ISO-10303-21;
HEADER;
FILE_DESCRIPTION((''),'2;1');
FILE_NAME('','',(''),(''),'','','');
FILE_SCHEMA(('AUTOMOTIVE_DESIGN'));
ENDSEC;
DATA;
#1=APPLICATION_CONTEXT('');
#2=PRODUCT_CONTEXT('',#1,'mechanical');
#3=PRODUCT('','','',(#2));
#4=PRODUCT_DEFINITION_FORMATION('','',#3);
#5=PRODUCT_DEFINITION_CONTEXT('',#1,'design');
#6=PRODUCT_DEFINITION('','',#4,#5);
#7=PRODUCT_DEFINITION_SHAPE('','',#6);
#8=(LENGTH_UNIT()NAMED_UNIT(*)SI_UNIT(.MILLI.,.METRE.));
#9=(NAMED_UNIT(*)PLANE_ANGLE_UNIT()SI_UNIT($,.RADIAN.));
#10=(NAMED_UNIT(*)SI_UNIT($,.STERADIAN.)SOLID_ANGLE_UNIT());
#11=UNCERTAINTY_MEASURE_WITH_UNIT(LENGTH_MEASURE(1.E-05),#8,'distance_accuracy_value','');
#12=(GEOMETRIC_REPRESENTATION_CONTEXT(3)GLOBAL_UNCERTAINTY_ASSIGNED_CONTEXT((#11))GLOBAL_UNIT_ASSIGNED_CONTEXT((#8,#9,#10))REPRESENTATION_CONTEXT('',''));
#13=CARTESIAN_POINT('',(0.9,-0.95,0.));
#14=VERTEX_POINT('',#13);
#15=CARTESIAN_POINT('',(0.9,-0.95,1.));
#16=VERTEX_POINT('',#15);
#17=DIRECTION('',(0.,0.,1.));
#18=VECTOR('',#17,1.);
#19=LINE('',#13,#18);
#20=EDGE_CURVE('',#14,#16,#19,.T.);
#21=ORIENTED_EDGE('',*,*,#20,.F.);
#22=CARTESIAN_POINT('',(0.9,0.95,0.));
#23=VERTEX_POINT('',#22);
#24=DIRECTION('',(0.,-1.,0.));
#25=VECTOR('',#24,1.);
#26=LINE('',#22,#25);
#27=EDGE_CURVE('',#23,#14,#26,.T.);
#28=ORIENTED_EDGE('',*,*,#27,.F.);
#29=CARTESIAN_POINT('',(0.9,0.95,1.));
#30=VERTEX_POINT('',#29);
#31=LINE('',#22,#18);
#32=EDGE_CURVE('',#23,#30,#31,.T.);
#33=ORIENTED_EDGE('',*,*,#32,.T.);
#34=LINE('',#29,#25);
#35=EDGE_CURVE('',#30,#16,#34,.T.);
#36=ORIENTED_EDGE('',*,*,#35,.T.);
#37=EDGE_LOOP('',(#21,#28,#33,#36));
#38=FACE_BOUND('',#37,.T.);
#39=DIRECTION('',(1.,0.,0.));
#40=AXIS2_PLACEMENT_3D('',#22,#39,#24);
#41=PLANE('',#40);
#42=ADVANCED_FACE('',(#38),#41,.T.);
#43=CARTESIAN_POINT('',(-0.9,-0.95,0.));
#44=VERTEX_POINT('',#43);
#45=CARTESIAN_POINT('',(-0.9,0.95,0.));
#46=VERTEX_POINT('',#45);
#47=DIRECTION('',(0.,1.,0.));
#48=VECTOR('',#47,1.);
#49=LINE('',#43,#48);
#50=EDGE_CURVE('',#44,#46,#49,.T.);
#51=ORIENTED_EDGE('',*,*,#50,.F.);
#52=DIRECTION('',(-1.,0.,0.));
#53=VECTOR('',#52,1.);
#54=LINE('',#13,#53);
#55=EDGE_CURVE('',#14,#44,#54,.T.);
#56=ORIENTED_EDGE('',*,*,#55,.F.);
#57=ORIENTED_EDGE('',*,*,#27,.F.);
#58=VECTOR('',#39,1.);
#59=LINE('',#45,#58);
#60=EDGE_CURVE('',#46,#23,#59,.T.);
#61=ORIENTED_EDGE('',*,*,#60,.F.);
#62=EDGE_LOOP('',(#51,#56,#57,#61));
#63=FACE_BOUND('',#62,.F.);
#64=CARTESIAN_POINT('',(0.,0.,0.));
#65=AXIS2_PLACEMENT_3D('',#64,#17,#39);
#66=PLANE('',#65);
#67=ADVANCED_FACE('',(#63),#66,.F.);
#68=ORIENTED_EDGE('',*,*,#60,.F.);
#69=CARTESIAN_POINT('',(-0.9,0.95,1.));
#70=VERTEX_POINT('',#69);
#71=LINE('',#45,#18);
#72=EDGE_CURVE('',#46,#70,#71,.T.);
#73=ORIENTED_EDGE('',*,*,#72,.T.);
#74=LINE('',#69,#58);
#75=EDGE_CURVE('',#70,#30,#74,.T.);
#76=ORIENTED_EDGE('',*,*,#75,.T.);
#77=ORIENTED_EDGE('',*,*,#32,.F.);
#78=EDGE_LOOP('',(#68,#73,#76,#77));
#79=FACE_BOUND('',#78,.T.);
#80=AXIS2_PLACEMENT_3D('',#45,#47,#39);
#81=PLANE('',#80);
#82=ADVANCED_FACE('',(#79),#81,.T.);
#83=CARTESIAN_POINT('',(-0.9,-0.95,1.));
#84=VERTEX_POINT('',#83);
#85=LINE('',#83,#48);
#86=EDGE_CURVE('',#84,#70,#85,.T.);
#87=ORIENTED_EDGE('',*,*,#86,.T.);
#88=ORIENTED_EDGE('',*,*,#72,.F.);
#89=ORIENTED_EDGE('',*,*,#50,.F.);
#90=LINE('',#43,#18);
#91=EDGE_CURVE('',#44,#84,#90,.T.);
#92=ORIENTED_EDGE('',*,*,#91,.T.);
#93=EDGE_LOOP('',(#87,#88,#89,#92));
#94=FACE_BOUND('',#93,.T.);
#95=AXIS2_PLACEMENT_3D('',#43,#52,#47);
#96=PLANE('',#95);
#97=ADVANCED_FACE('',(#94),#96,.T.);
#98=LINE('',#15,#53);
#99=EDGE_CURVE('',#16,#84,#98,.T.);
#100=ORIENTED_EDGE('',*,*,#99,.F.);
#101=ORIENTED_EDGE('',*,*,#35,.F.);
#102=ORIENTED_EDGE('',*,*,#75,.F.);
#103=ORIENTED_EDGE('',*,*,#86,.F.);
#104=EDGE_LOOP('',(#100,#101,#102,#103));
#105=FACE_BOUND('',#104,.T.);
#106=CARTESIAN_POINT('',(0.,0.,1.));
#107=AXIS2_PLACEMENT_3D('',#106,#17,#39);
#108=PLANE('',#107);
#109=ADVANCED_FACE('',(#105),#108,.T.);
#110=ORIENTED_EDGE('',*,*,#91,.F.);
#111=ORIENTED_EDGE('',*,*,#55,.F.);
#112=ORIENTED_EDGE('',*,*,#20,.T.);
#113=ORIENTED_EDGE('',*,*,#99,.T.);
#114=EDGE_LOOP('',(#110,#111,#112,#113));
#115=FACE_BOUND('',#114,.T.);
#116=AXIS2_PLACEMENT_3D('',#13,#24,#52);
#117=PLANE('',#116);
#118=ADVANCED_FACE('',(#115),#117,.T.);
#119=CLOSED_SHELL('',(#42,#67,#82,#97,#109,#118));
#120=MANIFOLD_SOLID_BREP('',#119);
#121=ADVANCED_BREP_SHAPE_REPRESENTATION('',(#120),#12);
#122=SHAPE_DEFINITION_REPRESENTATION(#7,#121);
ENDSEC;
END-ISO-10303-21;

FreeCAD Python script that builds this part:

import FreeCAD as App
import Part
import Sketcher
from FreeCAD import Vector


def add_polygon(sketch, points):
    """Adds a closed chain of lines whose ends are joined by coincident constraints."""
    first, n = sketch.GeometryCount, len(points)
    for a, b in zip(points, points[1:] + points[:1]):
        sketch.addGeometry(Part.LineSegment(App.Vector(*a, 0), App.Vector(*b, 0)), False)
    for i in range(n):
        sketch.addConstraint(Sketcher.Constraint("Coincident", first + i, 2, first + (i + 1) % n, 1))

doc = App.newDocument("Part")
body = doc.addObject("PartDesign::Body", "Body")

# Sketch on XY plane
sketch1 = body.newObject("Sketcher::SketchObject", "Sketch")
sketch1.AttachmentSupport = (doc.getObject("XY_Plane"), [""])
sketch1.MapMode = "FlatFace"
add_polygon(sketch1, [(0.9, 0.9), (-0.9, 0.9), (-0.9, -0.9), (0.9, -0.9)])  # lines 0-3
sketch1.addConstraint([
    Sketcher.Constraint("Horizontal", 0),
    Sketcher.Constraint("Vertical", 1),
    Sketcher.Constraint("Horizontal", 2),
    Sketcher.Constraint("Vertical", 3),
    Sketcher.Constraint("Symmetric", 0, 2, 2, 2, -1, 1),
    Sketcher.Constraint("DistanceX", 0, 2, 0, 1, 1.8),
    Sketcher.Constraint("DistanceY", 1, 2, 1, 1, 1.9),
])
pad1 = body.newObject("PartDesign::Pad", "Pad")
pad1.Profile = sketch1
pad1.Length = 1

doc.recompute()
